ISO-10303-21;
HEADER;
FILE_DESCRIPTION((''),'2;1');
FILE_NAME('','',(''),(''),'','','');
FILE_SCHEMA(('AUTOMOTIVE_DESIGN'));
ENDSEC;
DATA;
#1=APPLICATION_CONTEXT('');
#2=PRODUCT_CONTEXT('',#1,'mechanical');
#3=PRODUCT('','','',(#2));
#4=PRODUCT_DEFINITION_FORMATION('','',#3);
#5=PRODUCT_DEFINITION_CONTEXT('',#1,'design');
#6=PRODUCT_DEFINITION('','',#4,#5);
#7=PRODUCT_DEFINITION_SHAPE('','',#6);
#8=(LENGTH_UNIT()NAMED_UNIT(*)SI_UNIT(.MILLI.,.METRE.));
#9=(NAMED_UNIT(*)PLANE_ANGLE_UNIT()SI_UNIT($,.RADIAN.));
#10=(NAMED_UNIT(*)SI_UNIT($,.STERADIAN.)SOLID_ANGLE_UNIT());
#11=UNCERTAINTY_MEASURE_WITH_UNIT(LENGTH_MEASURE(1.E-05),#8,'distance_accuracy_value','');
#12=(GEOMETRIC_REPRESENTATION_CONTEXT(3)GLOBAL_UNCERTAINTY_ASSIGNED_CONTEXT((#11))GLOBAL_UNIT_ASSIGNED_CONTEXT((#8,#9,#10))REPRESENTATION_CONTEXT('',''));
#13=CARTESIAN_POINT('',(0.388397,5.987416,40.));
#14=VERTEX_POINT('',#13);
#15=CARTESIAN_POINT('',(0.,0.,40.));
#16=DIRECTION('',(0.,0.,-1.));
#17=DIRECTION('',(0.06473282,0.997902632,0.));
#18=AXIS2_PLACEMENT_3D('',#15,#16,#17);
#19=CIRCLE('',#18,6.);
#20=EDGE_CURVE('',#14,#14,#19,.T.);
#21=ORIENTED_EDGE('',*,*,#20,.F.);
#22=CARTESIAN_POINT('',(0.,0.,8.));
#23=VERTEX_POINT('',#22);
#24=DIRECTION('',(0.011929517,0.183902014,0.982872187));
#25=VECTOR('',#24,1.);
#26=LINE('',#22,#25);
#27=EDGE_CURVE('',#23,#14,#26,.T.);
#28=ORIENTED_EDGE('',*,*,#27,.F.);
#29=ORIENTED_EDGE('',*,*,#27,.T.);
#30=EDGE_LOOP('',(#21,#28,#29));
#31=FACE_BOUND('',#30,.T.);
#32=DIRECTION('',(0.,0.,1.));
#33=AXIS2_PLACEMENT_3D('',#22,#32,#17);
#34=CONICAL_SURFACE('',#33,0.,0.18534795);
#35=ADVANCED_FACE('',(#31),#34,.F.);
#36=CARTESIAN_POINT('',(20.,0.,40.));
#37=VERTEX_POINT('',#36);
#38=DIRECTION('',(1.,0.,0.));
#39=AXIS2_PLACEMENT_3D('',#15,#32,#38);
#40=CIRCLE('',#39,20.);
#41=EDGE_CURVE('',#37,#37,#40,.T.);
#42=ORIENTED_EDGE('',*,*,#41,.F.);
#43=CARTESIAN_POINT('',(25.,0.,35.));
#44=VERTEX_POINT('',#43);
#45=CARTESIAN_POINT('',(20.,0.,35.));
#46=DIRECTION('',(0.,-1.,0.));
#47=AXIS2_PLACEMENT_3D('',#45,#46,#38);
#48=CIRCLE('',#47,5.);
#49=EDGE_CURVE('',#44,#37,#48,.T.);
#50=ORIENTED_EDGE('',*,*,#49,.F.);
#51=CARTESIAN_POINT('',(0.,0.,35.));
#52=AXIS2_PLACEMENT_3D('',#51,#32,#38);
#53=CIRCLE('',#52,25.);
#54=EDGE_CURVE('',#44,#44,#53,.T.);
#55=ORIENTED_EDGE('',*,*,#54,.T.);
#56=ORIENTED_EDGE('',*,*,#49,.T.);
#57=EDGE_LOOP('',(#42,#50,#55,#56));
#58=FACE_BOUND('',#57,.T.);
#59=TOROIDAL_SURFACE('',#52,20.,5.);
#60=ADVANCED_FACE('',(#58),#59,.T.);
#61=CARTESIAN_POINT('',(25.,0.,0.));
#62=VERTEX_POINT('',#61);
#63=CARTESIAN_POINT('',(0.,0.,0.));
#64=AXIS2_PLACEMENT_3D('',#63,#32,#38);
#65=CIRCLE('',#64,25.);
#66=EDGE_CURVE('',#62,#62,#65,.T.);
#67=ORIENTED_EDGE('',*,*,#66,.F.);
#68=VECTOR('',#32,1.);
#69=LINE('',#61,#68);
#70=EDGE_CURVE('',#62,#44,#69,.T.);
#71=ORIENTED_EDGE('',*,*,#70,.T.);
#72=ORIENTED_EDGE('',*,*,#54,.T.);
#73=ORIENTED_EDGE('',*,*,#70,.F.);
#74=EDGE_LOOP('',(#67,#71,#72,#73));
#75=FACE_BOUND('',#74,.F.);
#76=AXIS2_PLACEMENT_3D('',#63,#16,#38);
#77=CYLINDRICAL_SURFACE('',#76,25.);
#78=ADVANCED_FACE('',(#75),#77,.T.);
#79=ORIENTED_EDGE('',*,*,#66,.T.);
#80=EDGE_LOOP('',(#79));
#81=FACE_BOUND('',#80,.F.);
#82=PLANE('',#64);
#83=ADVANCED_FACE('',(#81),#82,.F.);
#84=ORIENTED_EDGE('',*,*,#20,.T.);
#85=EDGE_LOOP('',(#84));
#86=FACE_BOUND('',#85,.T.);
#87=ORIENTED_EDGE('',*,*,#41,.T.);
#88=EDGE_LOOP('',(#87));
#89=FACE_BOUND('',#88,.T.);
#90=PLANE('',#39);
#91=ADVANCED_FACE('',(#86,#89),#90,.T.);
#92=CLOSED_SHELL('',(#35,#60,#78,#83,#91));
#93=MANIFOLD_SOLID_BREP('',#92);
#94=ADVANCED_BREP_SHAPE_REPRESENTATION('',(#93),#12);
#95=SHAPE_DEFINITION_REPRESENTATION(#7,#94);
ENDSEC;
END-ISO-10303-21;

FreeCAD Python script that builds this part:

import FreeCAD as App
import Part
import Sketcher
from FreeCAD import Vector


def edges_at(feature, points):
    """Names of the edges that pass closest to the given points."""
    edges = feature.Shape.Edges
    near = lambda p: min(range(len(edges)), key=lambda i: edges[i].distToShape(Part.Vertex(*p))[0])
    return sorted({f"Edge{near(p) + 1}" for p in points})

doc = App.newDocument("Part")
body = doc.addObject("PartDesign::Body", "Body")

# Sketch on XY plane
sketch1 = body.newObject("Sketcher::SketchObject", "Sketch")
sketch1.AttachmentSupport = (doc.getObject("XY_Plane"), [""])
sketch1.MapMode = "FlatFace"
sketch1.addGeometry(Part.Circle(Vector(0, 0, 0), Vector(0, 0, 1), 25), False)
sketch1.addConstraint([
    Sketcher.Constraint("Coincident", 0, 3, -1, 1),
    Sketcher.Constraint("Diameter", 0, 50.0),
])
pad1 = body.newObject("PartDesign::Pad", "Pad")
pad1.Profile = sketch1
pad1.Length = 40

# Sketch on an angled plane
sketch2 = body.newObject("Sketcher::SketchObject", "Sketch001")
sketch2.Placement = App.Placement(Vector(0, 0, 0), App.Rotation(Vector(0.06473282, 0.997902632, 0), Vector(0, 0, 1.000000001), Vector(0.997902632, -0.06473282, 0), "ZXY"))
sketch2.addGeometry([
    Part.LineSegment(Vector(6, 40, 0), Vector(0, 40, 0)),
    Part.LineSegment(Vector(0, 40, 0), Vector(0, 8, 0)),
    Part.LineSegment(Vector(0, 8, 0), Vector(6, 40, 0)),
], False)
sketch2.addConstraint([
    Sketcher.Constraint("Coincident", 0, 2, 1, 1),
    Sketcher.Constraint("Coincident", 1, 2, 2, 1),
    Sketcher.Constraint("Coincident", 2, 2, 0, 1),
    Sketcher.Constraint("Horizontal", 0),
    Sketcher.Constraint("Vertical", 1),
    Sketcher.Constraint("PointOnObject", 0, 2, -2),
    Sketcher.Constraint("DistanceX", 0, 2, 0, 1, 6.0),
    Sketcher.Constraint("DistanceY", 1, 2, 1, 1, 32.0),
    Sketcher.Constraint("DistanceY", -1, 1, 0, 2, 40.0),
])
groove = body.newObject("PartDesign::Groove", "Groove")
groove.Profile = sketch2
groove.ReferenceAxis = (sketch2, ["V_Axis"])
groove.Angle = 360
doc.recompute()

fillet = body.newObject("PartDesign::Fillet", "Fillet")
fillet.Base = (groove, edges_at(groove, [(-25, 0, 40)]))
fillet.Radius = 5

doc.recompute()
